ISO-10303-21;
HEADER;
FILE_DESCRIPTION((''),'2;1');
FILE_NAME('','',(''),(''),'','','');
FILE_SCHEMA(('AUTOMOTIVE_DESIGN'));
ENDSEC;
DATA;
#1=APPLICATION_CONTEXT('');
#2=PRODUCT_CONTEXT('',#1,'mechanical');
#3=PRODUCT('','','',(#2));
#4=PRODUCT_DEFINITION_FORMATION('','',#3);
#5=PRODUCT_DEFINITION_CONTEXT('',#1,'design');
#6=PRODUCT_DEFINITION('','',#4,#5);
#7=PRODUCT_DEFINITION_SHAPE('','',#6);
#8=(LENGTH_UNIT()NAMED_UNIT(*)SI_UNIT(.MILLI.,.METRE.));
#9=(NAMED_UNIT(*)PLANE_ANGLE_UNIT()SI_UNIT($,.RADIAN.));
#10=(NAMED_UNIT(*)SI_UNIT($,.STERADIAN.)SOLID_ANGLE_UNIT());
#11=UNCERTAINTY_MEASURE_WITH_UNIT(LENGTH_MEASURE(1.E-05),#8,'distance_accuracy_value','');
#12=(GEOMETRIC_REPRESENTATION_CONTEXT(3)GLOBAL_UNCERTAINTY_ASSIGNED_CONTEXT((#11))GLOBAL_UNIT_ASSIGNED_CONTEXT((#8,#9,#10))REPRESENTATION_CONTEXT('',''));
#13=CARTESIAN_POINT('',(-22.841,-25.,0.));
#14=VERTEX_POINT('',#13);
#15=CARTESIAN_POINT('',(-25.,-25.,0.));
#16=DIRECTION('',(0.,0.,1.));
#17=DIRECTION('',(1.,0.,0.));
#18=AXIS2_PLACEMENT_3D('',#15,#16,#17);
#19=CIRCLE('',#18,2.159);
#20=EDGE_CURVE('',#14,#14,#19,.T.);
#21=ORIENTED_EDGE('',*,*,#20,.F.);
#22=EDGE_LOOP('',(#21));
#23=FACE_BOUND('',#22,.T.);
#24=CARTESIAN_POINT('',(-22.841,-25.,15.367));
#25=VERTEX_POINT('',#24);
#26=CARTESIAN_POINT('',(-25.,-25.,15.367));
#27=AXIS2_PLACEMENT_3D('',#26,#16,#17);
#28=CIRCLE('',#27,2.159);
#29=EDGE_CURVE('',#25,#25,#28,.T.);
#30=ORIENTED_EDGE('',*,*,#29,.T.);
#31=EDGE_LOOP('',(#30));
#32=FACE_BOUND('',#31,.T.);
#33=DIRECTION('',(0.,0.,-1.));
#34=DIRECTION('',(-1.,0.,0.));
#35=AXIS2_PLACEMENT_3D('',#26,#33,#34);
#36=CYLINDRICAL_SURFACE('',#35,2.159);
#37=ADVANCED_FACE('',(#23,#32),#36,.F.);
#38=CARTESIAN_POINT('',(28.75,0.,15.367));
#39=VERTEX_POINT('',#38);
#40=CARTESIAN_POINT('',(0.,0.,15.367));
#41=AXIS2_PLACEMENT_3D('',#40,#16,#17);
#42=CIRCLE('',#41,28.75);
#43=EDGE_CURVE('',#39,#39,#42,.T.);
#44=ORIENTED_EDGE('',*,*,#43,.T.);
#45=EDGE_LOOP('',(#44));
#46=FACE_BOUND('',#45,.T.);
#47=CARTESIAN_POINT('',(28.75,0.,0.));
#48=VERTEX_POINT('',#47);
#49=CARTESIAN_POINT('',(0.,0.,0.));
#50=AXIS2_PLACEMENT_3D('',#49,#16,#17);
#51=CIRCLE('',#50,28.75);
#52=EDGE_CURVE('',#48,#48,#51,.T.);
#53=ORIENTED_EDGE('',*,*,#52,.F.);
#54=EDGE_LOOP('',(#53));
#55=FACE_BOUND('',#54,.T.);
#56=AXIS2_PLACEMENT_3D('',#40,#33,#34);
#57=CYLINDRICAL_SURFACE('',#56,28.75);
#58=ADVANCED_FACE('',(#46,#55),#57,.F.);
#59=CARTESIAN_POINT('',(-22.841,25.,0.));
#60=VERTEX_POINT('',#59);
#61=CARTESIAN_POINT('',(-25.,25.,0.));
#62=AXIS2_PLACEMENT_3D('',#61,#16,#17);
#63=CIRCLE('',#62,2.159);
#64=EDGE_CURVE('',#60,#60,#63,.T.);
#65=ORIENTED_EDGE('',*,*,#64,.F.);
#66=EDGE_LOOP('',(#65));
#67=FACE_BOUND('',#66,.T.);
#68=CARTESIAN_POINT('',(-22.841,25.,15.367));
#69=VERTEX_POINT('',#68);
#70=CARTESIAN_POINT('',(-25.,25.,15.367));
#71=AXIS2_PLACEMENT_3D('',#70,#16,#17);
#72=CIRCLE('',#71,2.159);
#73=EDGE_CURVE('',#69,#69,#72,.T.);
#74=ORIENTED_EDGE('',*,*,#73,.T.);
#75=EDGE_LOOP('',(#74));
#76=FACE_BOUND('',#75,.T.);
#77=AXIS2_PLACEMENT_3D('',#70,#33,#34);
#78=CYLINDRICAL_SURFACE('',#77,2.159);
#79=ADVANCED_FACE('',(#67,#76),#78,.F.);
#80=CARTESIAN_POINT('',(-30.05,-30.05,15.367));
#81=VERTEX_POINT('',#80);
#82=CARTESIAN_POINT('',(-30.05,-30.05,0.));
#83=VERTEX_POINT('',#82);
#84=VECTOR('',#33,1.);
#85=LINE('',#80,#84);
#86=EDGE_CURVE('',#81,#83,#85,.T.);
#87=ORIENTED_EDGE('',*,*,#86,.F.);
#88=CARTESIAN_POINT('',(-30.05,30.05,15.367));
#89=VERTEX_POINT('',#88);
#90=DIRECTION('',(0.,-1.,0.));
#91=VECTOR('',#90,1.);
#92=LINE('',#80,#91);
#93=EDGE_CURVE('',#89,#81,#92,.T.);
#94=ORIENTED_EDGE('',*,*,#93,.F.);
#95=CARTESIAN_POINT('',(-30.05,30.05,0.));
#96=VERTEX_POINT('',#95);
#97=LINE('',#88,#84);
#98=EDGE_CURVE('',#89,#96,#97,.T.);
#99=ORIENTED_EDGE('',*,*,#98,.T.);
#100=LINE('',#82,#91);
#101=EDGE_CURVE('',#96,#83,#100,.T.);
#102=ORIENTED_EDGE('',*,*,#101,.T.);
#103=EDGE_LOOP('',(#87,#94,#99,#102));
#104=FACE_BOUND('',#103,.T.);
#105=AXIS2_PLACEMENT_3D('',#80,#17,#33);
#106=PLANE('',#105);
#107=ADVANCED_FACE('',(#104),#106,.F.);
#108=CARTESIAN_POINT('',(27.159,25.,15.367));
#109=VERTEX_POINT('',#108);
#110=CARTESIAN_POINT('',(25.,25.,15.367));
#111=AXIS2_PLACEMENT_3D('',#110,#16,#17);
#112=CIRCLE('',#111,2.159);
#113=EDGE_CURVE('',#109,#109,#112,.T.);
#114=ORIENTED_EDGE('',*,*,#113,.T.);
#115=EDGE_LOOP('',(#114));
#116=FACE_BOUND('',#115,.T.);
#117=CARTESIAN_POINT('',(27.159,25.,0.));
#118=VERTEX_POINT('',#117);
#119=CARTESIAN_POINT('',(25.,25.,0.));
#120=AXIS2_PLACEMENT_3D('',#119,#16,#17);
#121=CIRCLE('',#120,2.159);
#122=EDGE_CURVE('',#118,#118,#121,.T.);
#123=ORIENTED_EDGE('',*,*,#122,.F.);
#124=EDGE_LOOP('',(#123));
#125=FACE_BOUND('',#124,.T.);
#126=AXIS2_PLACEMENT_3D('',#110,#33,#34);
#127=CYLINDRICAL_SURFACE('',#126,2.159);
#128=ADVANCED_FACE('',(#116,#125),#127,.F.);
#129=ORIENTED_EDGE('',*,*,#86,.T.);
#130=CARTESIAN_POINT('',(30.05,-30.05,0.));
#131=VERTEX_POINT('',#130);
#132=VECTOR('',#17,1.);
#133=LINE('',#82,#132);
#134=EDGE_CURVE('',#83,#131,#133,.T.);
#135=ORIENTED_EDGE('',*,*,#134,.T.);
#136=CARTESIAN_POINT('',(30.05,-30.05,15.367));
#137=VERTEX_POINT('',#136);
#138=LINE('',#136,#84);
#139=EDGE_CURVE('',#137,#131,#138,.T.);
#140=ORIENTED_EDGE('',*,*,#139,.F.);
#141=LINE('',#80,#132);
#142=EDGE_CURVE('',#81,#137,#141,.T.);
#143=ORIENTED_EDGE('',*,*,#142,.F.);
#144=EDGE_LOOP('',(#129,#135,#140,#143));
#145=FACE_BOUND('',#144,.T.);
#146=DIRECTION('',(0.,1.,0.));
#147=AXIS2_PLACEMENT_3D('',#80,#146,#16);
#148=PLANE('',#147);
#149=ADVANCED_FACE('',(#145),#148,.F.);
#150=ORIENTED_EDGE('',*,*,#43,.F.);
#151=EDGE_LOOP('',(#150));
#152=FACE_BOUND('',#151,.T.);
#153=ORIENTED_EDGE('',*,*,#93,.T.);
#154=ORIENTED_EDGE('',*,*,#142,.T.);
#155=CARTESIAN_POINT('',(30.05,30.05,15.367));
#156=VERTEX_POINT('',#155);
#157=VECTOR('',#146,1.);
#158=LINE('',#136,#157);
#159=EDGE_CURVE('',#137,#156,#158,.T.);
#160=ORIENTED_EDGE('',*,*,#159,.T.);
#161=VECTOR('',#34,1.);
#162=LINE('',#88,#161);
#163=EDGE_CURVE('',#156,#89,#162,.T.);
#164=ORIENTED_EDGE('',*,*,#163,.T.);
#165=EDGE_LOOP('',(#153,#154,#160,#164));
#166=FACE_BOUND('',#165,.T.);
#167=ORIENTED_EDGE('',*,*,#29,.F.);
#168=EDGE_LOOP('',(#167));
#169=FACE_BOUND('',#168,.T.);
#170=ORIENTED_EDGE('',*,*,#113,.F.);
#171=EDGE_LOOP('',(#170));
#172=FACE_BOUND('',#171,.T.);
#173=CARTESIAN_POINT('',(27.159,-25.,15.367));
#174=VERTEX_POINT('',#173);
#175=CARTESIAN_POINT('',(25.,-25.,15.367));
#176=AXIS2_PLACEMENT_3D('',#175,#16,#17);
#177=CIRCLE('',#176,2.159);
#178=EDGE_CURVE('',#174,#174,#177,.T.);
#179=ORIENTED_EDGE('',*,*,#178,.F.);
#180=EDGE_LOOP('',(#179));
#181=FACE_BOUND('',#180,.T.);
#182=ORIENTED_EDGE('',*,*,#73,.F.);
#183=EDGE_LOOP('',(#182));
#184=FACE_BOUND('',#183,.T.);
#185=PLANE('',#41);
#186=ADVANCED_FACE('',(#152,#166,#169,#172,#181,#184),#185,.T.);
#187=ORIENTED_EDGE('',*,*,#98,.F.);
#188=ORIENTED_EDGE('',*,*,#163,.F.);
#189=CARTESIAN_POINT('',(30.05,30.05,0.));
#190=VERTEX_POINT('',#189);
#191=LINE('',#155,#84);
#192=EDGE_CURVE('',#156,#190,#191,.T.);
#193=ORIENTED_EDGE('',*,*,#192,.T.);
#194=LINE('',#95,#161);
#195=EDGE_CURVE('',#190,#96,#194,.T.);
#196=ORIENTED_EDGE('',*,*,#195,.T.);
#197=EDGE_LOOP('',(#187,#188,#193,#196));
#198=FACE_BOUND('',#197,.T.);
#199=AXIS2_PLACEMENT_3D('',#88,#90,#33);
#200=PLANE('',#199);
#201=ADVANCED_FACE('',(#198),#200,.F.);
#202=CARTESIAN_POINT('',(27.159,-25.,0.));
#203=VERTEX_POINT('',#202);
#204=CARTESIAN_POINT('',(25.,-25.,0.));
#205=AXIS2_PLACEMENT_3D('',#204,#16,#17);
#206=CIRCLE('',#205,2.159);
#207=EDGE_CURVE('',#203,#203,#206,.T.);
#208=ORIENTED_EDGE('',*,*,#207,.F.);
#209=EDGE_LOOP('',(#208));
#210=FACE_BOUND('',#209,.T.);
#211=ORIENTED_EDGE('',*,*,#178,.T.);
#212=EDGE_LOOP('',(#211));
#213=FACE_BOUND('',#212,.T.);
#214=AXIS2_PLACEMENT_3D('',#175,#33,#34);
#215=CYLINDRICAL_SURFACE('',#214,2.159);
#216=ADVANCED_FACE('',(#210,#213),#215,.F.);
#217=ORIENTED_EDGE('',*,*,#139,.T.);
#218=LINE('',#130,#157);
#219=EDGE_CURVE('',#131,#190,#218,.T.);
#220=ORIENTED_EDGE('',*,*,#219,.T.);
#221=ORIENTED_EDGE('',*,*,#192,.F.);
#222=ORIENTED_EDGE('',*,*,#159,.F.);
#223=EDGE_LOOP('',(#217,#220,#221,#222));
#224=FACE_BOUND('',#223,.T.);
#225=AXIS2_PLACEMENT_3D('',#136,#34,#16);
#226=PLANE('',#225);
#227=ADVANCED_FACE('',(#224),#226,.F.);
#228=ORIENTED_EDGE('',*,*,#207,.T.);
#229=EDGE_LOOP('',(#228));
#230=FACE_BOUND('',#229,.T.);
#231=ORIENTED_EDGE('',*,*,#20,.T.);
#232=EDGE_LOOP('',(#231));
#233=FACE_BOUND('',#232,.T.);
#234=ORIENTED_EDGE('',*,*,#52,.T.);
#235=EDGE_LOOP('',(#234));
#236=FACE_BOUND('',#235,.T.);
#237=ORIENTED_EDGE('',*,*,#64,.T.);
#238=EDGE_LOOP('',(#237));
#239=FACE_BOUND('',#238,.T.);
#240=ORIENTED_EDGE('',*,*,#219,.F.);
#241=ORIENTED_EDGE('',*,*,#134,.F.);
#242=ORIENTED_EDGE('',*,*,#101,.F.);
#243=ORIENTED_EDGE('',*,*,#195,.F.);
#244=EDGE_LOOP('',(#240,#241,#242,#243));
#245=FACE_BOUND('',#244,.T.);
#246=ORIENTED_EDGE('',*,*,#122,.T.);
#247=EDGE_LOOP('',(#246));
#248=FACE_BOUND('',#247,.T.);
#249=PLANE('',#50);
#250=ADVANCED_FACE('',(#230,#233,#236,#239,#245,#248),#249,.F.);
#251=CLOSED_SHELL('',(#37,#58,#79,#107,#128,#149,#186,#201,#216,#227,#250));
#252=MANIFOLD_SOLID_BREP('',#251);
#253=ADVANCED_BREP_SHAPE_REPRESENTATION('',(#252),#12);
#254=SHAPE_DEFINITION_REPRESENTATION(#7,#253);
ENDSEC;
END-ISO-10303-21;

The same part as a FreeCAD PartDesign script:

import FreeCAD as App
import Part
import Sketcher

V = App.Vector
Q = App.Units.Quantity

doc = App.newDocument("Part")
body = doc.addObject("PartDesign::Body", "Body")

sketch1 = body.newObject("Sketcher::SketchObject", "Sketch")
sketch1.AttachmentSupport = (doc.getObject("XY_Plane"), [""])
sketch1.MapMode = "FlatFace"
sketch1.addGeometry(Part.LineSegment(V(-30.1, 30.1, 0), V(-30.1, -30.1, 0)), False)
sketch1.addGeometry(Part.LineSegment(V(-30.1, -30.1, 0), V(30.1, -30.1, 0)), False)
sketch1.addGeometry(Part.LineSegment(V(30.1, -30.1, 0), V(30.1, 30.1, 0)), False)
sketch1.addGeometry(Part.LineSegment(V(30.1, 30.1, 0), V(-30.1, 30.1, 0)), False)
sketch1.addGeometry(Part.Circle(V(-25, -25, 0), V(0, 0, 1), 2.2), False)
sketch1.addGeometry(Part.Circle(V(25, -25, 0), V(0, 0, 1), 2.2), False)
sketch1.addGeometry(Part.Circle(V(-25, 25, 0), V(0, 0, 1), 2.2), False)
sketch1.addGeometry(Part.Circle(V(0, 0, 0), V(0, 0, 1), 28.8), False)
sketch1.addGeometry(Part.Circle(V(25, 25, 0), V(0, 0, 1), 2.2), False)
sketch1.addConstraint(Sketcher.Constraint("Coincident", 0, 2, 1, 1))
sketch1.addConstraint(Sketcher.Constraint("Coincident", 1, 2, 2, 1))
sketch1.addConstraint(Sketcher.Constraint("Coincident", 2, 2, 3, 1))
sketch1.addConstraint(Sketcher.Constraint("Coincident", 3, 2, 0, 1))
sketch1.addConstraint(Sketcher.Constraint("Vertical", 0))
sketch1.addConstraint(Sketcher.Constraint("Horizontal", 1))
sketch1.addConstraint(Sketcher.Constraint("Vertical", 2))
sketch1.addConstraint(Sketcher.Constraint("Horizontal", 3))
sketch1.addConstraint(Sketcher.Constraint("Coincident", 7, 3, -1, 1))
sketch1.addConstraint(Sketcher.Constraint("Equal", 4, 5))
sketch1.addConstraint(Sketcher.Constraint("Equal", 5, 6))
sketch1.addConstraint(Sketcher.Constraint("Equal", 6, 8))
sketch1.addConstraint(Sketcher.Constraint("Symmetric", 5, 3, 6, 3, -1, 1))
sketch1.addConstraint(Sketcher.Constraint("Symmetric", 4, 3, 8, 3, -1, 1))
sketch1.addConstraint(Sketcher.Constraint("Symmetric", 0, 2, 2, 2, -1, 1))
sketch1.addConstraint(Sketcher.Constraint("Symmetric", 4, 3, 5, 3, -2))
sketch1.addConstraint(Sketcher.Constraint("Equal", 3, 0))
sketch1.addConstraint(Sketcher.Constraint("Diameter", 7, Q("57.5 mm")))
sketch1.addConstraint(Sketcher.Constraint("Diameter", 4, Q("4.318 mm")))
sketch1.addConstraint(Sketcher.Constraint("DistanceX", 1, 1, 1, 2, Q("60.1 mm")))
sketch1.addConstraint(Sketcher.Constraint("DistanceX", 4, 3, -1, 1, Q("25 mm")))
sketch1.addConstraint(Sketcher.Constraint("DistanceY", 4, 3, -1, 1, Q("25 mm")))
pad1 = body.newObject("PartDesign::Pad", "Pad")
pad1.Profile = sketch1
pad1.Length = 15.367

doc.recompute()
